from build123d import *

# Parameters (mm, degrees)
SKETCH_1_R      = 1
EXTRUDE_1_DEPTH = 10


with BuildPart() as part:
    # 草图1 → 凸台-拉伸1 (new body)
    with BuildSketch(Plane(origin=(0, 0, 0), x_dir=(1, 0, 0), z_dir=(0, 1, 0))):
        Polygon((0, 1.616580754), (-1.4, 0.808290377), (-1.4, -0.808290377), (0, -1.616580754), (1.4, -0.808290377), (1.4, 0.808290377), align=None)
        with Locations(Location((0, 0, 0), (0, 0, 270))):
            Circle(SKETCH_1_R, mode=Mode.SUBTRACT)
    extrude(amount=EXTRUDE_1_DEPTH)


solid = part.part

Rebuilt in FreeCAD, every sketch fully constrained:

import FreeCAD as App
import Part
import Sketcher
from FreeCAD import Vector
Q = App.Units.Quantity

doc = App.newDocument("Part")
body = doc.addObject("PartDesign::Body", "Body")

# Sketch on XZ plane
sketch1 = body.newObject("Sketcher::SketchObject", "Sketch")
sketch1.AttachmentSupport = (doc.getObject("XZ_Plane"), [""])
sketch1.MapMode = "FlatFace"
sketch1.addGeometry(Part.LineSegment(Vector(0, -1.6, 0), Vector(-1.4, -0.8, 0)), False)
sketch1.addGeometry(Part.LineSegment(Vector(-1.4, -0.8, 0), Vector(-1.4, 0.8, 0)), False)
sketch1.addGeometry(Part.LineSegment(Vector(-1.4, 0.8, 0), Vector(0, 1.6, 0)), False)
sketch1.addGeometry(Part.LineSegment(Vector(0, 1.6, 0), Vector(1.4, 0.8, 0)), False)
sketch1.addGeometry(Part.LineSegment(Vector(1.4, 0.8, 0), Vector(1.4, -0.8, 0)), False)
sketch1.addGeometry(Part.LineSegment(Vector(1.4, -0.8, 0), Vector(0, -1.6, 0)), False)
sketch1.addGeometry(Part.Circle(Vector(0, 0, 0), Vector(0, 0, 1), 1), False)
sketch1.addConstraint(Sketcher.Constraint("Coincident", 0, 2, 1, 1))
sketch1.addConstraint(Sketcher.Constraint("Coincident", 1, 2, 2, 1))
sketch1.addConstraint(Sketcher.Constraint("Coincident", 2, 2, 3, 1))
sketch1.addConstraint(Sketcher.Constraint("Coincident", 3, 2, 4, 1))
sketch1.addConstraint(Sketcher.Constraint("Coincident", 4, 2, 5, 1))
sketch1.addConstraint(Sketcher.Constraint("Coincident", 5, 2, 0, 1))
sketch1.addConstraint(Sketcher.Constraint("Vertical", 1))
sketch1.addConstraint(Sketcher.Constraint("Vertical", 4))
sketch1.addConstraint(Sketcher.Constraint("Coincident", 6, 3, -1, 1))
sketch1.addConstraint(Sketcher.Constraint("Symmetric", 0, 2, 3, 2, -1, 1))
sketch1.addConstraint(Sketcher.Constraint("Symmetric", 2, 2, 5, 2, -1, 1))
sketch1.addConstraint(Sketcher.Constraint("PointOnObject", 2, 2, -2))
sketch1.addConstraint(Sketcher.Constraint("Parallel", 2, 5))
sketch1.addConstraint(Sketcher.Constraint("Horizontal", 1, 2, 3, 2))
sketch1.addConstraint(Sketcher.Constraint("Diameter", 6, 2.0))
sketch1.addConstraint(Sketcher.Constraint("Angle", 0, Q("150 deg")))
sketch1.addConstraint(Sketcher.Constraint("DistanceX", 0, 2, -1, 1, 1.4))
sketch1.addConstraint(Sketcher.Constraint("DistanceY", 1, 1, 1, 2, 1.616581))
pad1 = body.newObject("PartDesign::Pad", "Pad")
pad1.Profile = sketch1
pad1.Length = 10
pad1.Reversed = True

doc.recompute()
